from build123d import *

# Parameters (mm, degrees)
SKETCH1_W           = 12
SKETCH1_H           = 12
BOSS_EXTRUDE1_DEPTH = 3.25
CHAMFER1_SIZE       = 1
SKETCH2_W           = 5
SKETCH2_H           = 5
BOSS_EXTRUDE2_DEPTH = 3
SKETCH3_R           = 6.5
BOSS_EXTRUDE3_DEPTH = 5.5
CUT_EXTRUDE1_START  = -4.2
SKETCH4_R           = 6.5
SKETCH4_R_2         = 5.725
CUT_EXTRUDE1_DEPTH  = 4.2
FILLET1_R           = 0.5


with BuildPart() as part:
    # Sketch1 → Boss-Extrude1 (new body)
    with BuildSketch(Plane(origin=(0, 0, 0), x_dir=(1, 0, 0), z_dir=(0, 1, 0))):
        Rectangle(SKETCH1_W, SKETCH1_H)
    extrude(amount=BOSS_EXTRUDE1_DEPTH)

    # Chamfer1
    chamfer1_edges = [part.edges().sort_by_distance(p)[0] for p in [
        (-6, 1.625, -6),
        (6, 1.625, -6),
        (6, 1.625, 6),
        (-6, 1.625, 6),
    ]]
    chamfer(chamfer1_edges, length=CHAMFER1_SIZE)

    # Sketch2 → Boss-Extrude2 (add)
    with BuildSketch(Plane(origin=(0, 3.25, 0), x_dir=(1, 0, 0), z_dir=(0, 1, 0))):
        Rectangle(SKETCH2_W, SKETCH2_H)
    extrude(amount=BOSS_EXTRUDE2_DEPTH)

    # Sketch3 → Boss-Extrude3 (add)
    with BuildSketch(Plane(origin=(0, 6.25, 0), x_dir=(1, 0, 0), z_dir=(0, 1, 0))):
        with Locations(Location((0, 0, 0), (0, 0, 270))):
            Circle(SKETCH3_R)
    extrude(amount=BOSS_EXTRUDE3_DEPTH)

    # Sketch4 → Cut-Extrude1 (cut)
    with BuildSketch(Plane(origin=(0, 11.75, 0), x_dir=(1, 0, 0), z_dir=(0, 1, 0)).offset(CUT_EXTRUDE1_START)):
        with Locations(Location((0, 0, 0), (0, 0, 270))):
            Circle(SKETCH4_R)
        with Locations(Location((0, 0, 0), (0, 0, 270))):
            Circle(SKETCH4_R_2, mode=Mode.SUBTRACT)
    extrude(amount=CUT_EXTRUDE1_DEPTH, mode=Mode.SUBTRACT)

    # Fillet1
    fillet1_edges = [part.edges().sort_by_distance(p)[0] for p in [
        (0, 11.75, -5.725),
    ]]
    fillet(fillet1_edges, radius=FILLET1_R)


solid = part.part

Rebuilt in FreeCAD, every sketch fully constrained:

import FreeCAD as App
import Part
import Sketcher

V = App.Vector
Q = App.Units.Quantity


def edges_at(feature, points):
    """Names of the edges that pass closest to the given points."""
    edges = feature.Shape.Edges
    near = lambda p: min(range(len(edges)), key=lambda i: edges[i].distToShape(Part.Vertex(*p))[0])
    return sorted({f"Edge{near(p) + 1}" for p in points})


def add_polygon(sketch, points):
    """Adds a closed chain of lines whose ends are joined by coincident constraints."""
    first, n = sketch.GeometryCount, len(points)
    for a, b in zip(points, points[1:] + points[:1]):
        sketch.addGeometry(Part.LineSegment(App.Vector(*a, 0), App.Vector(*b, 0)), False)
    for i in range(n):
        sketch.addConstraint(Sketcher.Constraint("Coincident", first + i, 2, first + (i + 1) % n, 1))

doc = App.newDocument("Part")
params = doc.addObject("Spreadsheet::Sheet", "Params")
for row, (alias, value) in enumerate([
    ("sketch1_width", "12 mm"),
    ("pad1_length", "3.25 mm"),
    ("chamfer_size", "1 mm"),
    ("sketch2_width", "5 mm"),
    ("pad2_length", "3 mm"),
    ("sketch3_diameter", "13 mm"),
    ("pad3_length", "5.5 mm"),
    ("sketch4_diameter", "13 mm"),
    ("sketch4_diameter2", "11.45 mm"),
    ("pocket1_length", "4.2 mm"),
    ("fillet_radius", "0.5 mm"),
], start=1):
    params.set(f"A{row}", alias)
    params.set(f"B{row}", "=" + value)
    params.setAlias(f"B{row}", alias)

body = doc.addObject("PartDesign::Body", "Body")

# Sketch on XZ plane
sketch1 = body.newObject("Sketcher::SketchObject", "Sketch")
sketch1.AttachmentSupport = (doc.getObject("XZ_Plane"), [""])
sketch1.MapMode = "FlatFace"
add_polygon(sketch1, [(-6, -6), (-6, 6), (6, 6), (6, -6)])  # lines 0-3
sketch1.addConstraint([
    Sketcher.Constraint("Vertical", 0),
    Sketcher.Constraint("Horizontal", 1),
    Sketcher.Constraint("Vertical", 2),
    Sketcher.Constraint("Horizontal", 3),
    Sketcher.Constraint("Symmetric", 0, 2, 2, 2, -1, 1),
    Sketcher.Constraint("Equal", 3, 0),
    Sketcher.Constraint("DistanceX", 1, 1, 1, 2, Q("12 mm")),
])
sketch1.setExpression("Constraints[10]", "Params.sketch1_width")
pad1 = body.newObject("PartDesign::Pad", "Pad")
pad1.Profile = sketch1
pad1.setExpression("Length", "Params.pad1_length")
pad1.Reversed = True
doc.recompute()

chamfer = body.newObject("PartDesign::Chamfer", "Chamfer")
chamfer.Base = (pad1, edges_at(pad1, [
    (-6, 1.625, -6),
    (6, 1.625, -6),
    (6, 1.625, 6),
    (-6, 1.625, 6),
]))
chamfer.setExpression("Size", "Params.chamfer_size")

# Sketch on XZ plane
sketch2 = body.newObject("Sketcher::SketchObject", "Sketch001")
sketch2.AttachmentSupport = (doc.getObject("XZ_Plane"), [""])
sketch2.MapMode = "FlatFace"
sketch2.AttachmentOffset = App.Placement(V(0, 0, -3.25), App.Rotation())
add_polygon(sketch2, [(-2, -2), (-2, 2), (2, 2), (2, -2)])  # lines 0-3
sketch2.addConstraint([
    Sketcher.Constraint("Vertical", 0),
    Sketcher.Constraint("Horizontal", 1),
    Sketcher.Constraint("Vertical", 2),
    Sketcher.Constraint("Horizontal", 3),
    Sketcher.Constraint("Symmetric", 0, 2, 2, 2, -1, 1),
    Sketcher.Constraint("Equal", 3, 0),
    Sketcher.Constraint("DistanceX", 1, 1, 1, 2, Q("5 mm")),
])
sketch2.setExpression("Constraints[10]", "Params.sketch2_width")
pad2 = body.newObject("PartDesign::Pad", "Pad001")
pad2.Profile = sketch2
pad2.setExpression("Length", "Params.pad2_length")
pad2.Reversed = True

# Sketch on XZ plane
sketch3 = body.newObject("Sketcher::SketchObject", "Sketch002")
sketch3.AttachmentSupport = (doc.getObject("XZ_Plane"), [""])
sketch3.MapMode = "FlatFace"
sketch3.AttachmentOffset = App.Placement(V(0, 0, -6.25), App.Rotation())
sketch3.addGeometry(Part.Circle(V(0, 0, 0), V(0, 0, 1), 6), False)
sketch3.addConstraint([
    Sketcher.Constraint("Coincident", 0, 3, -1, 1),
    Sketcher.Constraint("Diameter", 0, Q("13 mm")),
])
sketch3.setExpression("Constraints[1]", "Params.sketch3_diameter")
pad3 = body.newObject("PartDesign::Pad", "Pad002")
pad3.Profile = sketch3
pad3.setExpression("Length", "Params.pad3_length")
pad3.Reversed = True

# Sketch on XZ plane
sketch4 = body.newObject("Sketcher::SketchObject", "Sketch003")
sketch4.AttachmentSupport = (doc.getObject("XZ_Plane"), [""])
sketch4.MapMode = "FlatFace"
sketch4.AttachmentOffset = App.Placement(V(0, 0, -7.55), App.Rotation())
sketch4.addGeometry([
    Part.Circle(V(0, 0, 0), V(0, 0, 1), 6),
    Part.Circle(V(0, 0, 0), V(0, 0, 1), 6),
], False)
sketch4.addConstraint([
    Sketcher.Constraint("Coincident", 0, 3, -1, 1),
    Sketcher.Constraint("Coincident", 1, 3, -1, 1),
    Sketcher.Constraint("Diameter", 0, Q("13 mm")),
    Sketcher.Constraint("Diameter", 1, Q("11.45 mm")),
])
sketch4.setExpression("Constraints[2]", "Params.sketch4_diameter")
sketch4.setExpression("Constraints[3]", "Params.sketch4_diameter2")
pocket1 = body.newObject("PartDesign::Pocket", "Pocket")
pocket1.Profile = sketch4
pocket1.setExpression("Length", "Params.pocket1_length")
doc.recompute()

fillet = body.newObject("PartDesign::Fillet", "Fillet")
fillet.Base = (pocket1, edges_at(pocket1, [(0, 11.75, -5.725)]))
fillet.setExpression("Radius", "Params.fillet_radius")

doc.recompute()
